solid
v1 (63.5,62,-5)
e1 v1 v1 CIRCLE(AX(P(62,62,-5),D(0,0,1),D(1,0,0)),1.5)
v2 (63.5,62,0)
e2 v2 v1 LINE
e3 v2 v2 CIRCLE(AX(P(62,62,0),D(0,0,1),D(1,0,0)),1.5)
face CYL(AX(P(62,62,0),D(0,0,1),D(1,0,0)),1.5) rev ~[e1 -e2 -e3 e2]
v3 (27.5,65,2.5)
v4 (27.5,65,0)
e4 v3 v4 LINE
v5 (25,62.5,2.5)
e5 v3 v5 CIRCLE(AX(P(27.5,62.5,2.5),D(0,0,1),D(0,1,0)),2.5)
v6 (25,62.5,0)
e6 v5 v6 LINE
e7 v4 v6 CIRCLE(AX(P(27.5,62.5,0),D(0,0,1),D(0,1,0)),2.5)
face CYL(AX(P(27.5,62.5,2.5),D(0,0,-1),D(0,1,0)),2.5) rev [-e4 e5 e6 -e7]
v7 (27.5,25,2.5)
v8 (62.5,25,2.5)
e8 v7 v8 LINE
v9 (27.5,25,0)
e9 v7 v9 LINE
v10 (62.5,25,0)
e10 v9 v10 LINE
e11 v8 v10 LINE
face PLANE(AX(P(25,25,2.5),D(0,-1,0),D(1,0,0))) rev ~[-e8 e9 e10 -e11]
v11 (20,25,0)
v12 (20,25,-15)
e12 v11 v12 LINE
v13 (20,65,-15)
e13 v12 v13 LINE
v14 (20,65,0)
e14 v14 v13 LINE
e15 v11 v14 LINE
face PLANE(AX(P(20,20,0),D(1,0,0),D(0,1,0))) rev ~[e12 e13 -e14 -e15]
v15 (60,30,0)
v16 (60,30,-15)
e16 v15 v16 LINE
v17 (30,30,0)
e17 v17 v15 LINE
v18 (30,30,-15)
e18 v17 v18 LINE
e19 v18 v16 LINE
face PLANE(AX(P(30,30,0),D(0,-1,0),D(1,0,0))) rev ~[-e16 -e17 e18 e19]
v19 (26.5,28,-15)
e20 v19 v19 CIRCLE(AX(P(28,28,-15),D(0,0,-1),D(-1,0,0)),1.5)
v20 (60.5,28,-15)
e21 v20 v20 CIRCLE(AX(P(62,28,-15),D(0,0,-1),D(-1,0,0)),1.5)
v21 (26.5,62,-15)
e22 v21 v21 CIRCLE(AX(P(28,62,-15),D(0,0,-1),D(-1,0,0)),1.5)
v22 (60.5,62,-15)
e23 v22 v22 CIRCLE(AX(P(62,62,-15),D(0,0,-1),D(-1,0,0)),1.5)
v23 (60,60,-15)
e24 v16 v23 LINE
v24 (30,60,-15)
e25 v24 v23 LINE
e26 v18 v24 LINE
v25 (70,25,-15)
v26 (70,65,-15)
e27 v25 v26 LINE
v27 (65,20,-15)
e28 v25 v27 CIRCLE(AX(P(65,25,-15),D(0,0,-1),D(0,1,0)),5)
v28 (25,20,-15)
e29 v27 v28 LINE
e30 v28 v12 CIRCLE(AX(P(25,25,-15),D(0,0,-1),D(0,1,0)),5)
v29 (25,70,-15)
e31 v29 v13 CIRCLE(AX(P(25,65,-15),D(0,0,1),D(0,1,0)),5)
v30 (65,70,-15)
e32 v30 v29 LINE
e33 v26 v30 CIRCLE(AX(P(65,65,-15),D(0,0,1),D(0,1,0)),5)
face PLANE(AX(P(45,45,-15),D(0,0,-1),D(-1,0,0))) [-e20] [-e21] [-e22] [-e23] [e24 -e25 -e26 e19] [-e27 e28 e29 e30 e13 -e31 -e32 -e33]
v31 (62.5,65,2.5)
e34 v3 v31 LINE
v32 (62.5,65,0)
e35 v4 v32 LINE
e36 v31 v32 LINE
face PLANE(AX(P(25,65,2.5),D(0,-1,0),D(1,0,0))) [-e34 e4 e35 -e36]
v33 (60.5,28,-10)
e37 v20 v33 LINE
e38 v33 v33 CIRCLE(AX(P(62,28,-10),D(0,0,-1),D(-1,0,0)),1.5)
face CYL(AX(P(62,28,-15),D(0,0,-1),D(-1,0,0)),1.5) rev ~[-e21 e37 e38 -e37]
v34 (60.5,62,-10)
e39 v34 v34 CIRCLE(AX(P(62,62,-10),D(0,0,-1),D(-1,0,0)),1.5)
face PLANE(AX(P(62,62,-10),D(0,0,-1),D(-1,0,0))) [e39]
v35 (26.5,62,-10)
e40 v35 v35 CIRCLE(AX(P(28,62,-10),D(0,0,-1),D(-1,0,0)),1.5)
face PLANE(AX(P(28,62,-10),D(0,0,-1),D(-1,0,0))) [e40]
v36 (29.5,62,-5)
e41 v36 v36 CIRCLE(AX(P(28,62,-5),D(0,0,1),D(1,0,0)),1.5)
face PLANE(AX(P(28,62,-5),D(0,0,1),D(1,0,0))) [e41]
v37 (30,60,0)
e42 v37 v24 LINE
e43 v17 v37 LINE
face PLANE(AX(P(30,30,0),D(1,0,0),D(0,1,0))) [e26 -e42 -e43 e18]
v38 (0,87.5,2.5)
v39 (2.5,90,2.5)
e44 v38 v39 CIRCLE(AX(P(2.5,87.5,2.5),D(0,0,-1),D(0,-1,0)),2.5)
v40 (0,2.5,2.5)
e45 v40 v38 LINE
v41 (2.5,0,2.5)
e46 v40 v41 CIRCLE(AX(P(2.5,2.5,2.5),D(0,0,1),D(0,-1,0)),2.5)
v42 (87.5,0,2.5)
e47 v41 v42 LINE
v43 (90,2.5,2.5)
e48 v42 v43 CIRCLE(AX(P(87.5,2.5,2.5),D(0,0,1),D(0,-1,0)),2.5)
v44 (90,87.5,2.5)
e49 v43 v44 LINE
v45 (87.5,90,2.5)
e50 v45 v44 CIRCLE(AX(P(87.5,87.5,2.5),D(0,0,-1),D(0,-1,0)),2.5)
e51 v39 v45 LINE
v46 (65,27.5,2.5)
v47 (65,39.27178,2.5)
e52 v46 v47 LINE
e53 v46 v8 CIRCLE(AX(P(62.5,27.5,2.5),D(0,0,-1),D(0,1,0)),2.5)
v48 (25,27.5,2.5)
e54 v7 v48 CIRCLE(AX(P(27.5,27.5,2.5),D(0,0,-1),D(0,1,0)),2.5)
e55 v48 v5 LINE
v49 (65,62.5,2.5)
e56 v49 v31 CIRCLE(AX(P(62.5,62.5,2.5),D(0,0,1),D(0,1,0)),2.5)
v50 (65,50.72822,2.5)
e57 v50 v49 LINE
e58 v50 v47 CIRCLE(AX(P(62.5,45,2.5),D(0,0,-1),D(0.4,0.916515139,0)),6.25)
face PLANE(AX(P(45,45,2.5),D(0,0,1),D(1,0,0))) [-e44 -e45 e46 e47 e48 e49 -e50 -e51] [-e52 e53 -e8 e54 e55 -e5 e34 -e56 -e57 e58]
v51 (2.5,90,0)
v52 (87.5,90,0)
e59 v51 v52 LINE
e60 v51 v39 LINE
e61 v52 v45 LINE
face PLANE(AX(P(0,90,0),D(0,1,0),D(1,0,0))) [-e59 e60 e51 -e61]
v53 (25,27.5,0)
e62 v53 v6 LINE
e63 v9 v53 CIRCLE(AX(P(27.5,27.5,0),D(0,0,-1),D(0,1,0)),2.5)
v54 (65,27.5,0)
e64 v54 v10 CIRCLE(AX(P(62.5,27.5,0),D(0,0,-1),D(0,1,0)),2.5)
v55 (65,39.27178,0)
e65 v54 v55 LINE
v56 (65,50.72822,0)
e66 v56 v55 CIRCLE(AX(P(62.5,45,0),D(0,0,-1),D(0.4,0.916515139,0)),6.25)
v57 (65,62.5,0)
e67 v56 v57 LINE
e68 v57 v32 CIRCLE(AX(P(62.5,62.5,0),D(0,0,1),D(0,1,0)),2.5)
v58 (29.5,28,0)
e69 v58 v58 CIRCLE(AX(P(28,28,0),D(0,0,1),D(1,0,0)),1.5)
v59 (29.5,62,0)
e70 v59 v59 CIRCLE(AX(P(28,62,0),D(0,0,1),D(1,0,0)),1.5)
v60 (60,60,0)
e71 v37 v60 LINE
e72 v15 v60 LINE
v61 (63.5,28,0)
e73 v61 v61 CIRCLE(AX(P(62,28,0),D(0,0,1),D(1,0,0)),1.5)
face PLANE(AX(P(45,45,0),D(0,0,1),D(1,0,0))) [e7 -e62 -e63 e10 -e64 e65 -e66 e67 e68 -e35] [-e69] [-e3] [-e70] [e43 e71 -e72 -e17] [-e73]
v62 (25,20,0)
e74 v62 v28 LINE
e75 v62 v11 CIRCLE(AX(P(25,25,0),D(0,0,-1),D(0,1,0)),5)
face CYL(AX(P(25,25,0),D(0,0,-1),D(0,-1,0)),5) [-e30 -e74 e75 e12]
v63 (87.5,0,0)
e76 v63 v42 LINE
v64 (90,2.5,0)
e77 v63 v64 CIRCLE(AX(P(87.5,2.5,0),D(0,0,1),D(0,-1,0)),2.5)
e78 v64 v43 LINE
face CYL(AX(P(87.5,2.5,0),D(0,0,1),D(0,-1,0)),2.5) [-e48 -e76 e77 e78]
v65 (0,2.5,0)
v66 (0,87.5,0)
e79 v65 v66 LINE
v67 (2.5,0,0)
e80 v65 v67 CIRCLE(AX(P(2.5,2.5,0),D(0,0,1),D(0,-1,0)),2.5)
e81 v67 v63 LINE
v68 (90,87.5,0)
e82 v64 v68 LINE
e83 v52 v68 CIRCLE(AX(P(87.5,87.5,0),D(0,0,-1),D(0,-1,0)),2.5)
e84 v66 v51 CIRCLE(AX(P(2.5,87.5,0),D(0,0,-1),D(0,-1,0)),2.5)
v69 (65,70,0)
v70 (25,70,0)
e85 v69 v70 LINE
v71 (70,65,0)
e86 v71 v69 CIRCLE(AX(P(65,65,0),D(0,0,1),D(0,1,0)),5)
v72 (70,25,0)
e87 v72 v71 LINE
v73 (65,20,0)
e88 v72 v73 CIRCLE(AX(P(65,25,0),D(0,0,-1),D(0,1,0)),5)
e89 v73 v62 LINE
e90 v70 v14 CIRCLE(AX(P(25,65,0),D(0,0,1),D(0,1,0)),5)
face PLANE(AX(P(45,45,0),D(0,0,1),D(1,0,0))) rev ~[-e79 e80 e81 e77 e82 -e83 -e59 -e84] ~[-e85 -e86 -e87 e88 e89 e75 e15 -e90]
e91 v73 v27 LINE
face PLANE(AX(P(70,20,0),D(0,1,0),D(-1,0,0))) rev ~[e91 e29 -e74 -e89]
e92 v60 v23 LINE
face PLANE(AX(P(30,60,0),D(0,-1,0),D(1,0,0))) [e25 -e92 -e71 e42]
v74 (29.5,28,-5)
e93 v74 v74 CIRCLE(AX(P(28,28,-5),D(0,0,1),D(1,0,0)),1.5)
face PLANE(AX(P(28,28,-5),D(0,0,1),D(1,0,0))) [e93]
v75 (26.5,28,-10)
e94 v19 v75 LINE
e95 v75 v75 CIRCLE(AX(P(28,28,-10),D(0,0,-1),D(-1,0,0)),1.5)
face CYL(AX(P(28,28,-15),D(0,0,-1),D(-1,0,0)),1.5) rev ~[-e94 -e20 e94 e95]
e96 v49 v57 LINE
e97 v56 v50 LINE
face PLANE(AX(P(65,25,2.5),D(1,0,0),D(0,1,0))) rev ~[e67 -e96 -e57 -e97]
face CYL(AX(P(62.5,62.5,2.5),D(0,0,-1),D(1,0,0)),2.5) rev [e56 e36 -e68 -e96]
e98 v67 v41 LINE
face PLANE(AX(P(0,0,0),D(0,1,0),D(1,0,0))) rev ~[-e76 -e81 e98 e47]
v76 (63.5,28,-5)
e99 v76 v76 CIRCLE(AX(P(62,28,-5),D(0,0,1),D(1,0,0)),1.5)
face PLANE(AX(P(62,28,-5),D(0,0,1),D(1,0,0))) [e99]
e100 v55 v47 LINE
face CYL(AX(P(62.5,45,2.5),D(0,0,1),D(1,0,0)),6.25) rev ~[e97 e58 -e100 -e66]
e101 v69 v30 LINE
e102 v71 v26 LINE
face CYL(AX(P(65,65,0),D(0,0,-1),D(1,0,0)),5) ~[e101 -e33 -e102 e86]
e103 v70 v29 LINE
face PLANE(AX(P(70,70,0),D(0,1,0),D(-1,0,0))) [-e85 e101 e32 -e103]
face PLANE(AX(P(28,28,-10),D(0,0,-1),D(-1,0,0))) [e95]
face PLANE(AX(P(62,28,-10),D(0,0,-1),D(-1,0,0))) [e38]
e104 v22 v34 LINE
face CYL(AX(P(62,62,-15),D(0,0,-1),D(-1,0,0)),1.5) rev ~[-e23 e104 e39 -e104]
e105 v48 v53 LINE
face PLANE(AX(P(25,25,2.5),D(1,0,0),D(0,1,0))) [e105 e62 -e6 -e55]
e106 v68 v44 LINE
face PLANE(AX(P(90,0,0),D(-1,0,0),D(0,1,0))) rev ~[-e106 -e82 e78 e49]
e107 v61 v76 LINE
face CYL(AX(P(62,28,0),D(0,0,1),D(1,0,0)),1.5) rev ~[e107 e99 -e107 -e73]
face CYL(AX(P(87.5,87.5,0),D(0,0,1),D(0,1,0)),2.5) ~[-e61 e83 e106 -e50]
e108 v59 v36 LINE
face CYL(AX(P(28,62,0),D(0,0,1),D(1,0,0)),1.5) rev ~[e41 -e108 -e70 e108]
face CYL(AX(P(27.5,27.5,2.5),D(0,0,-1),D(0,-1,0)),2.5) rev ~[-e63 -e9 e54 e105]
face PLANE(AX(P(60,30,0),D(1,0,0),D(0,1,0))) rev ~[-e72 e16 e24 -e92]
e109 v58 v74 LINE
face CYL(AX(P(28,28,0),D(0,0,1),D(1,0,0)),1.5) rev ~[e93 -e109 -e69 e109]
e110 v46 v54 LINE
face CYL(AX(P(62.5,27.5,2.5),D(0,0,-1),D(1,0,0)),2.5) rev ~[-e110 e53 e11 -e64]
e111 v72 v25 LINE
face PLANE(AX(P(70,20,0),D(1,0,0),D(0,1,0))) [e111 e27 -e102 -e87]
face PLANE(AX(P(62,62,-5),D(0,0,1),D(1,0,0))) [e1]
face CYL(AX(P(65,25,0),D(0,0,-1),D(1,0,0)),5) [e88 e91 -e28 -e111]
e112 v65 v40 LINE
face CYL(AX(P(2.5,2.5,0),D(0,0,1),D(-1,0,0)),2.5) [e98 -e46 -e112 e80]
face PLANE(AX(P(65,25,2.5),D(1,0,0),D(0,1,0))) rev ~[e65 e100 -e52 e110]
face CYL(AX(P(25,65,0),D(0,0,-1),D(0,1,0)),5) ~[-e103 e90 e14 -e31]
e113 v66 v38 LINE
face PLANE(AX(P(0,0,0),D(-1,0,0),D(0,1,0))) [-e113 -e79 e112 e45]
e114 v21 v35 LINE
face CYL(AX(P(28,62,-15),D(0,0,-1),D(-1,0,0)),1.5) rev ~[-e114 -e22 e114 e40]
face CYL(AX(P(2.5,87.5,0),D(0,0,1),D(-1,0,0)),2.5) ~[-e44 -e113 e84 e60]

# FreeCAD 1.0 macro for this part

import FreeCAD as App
import Part
import Sketcher
from FreeCAD import Vector
Q = App.Units.Quantity


def edges_at(feature, points):
    """Names of the edges that pass closest to the given points."""
    edges = feature.Shape.Edges
    near = lambda p: min(range(len(edges)), key=lambda i: edges[i].distToShape(Part.Vertex(*p))[0])
    return sorted({f"Edge{near(p) + 1}" for p in points})


def add_polygon(sketch, points):
    """Adds a closed chain of lines whose ends are joined by coincident constraints."""
    first, n = sketch.GeometryCount, len(points)
    for a, b in zip(points, points[1:] + points[:1]):
        sketch.addGeometry(Part.LineSegment(App.Vector(*a, 0), App.Vector(*b, 0)), False)
    for i in range(n):
        sketch.addConstraint(Sketcher.Constraint("Coincident", first + i, 2, first + (i + 1) % n, 1))

doc = App.newDocument("Part")
body = doc.addObject("PartDesign::Body", "Body")

# Sketch on XY plane
sketch1 = body.newObject("Sketcher::SketchObject", "Sketch")
sketch1.AttachmentSupport = (doc.getObject("XY_Plane"), [""])
sketch1.MapMode = "FlatFace"
add_polygon(sketch1, [(0, 90), (0, 0), (90, 0), (90, 90)])  # lines 0-3
sketch1.addConstraint(Sketcher.Constraint("Vertical", 0))
sketch1.addConstraint(Sketcher.Constraint("Horizontal", 1))
sketch1.addConstraint(Sketcher.Constraint("Vertical", 2))
sketch1.addConstraint(Sketcher.Constraint("Horizontal", 3))
sketch1.addConstraint(Sketcher.Constraint("Coincident", 0, 2, -1, 1))
sketch1.addConstraint(Sketcher.Constraint("Equal", 3, 0))
sketch1.addConstraint(Sketcher.Constraint("DistanceX", 1, 1, 1, 2, Q("90 mm")))
pad1 = body.newObject("PartDesign::Pad", "Pad")
pad1.Profile = sketch1
pad1.Length = 2.5

# Sketch on XY plane
sketch2 = body.newObject("Sketcher::SketchObject", "Sketch001")
sketch2.AttachmentSupport = (doc.getObject("XY_Plane"), [""])
sketch2.MapMode = "FlatFace"
add_polygon(sketch2, [(70, 70), (70, 20), (20, 20), (20, 70)])  # lines 0-3
sketch2.addConstraint(Sketcher.Constraint("Vertical", 0))
sketch2.addConstraint(Sketcher.Constraint("Horizontal", 1))
sketch2.addConstraint(Sketcher.Constraint("Vertical", 2))
sketch2.addConstraint(Sketcher.Constraint("Horizontal", 3))
sketch2.addConstraint(Sketcher.Constraint("Equal", 3, 0))
sketch2.addConstraint(Sketcher.Constraint("DistanceX", 1, 2, 1, 1, Q("50 mm")))
sketch2.addConstraint(Sketcher.Constraint("DistanceX", -1, 1, 0, 2, Q("70 mm")))
sketch2.addConstraint(Sketcher.Constraint("DistanceY", -1, 1, 0, 2, Q("20 mm")))
pad2 = body.newObject("PartDesign::Pad", "Pad001")
pad2.Profile = sketch2
pad2.Length = 15
pad2.Reversed = True

# Sketch on XY plane
sketch3 = body.newObject("Sketcher::SketchObject", "Sketch002")
sketch3.AttachmentSupport = (doc.getObject("XY_Plane"), [""])
sketch3.MapMode = "FlatFace"
sketch3.AttachmentOffset = App.Placement(Vector(0, 0, 2.5), App.Rotation())
add_polygon(sketch3, [(25, 65), (25, 25), (65, 25), (65, 65)])  # lines 0-3
sketch3.addConstraint(Sketcher.Constraint("Vertical", 0))
sketch3.addConstraint(Sketcher.Constraint("Horizontal", 1))
sketch3.addConstraint(Sketcher.Constraint("Vertical", 2))
sketch3.addConstraint(Sketcher.Constraint("Horizontal", 3))
sketch3.addConstraint(Sketcher.Constraint("Equal", 3, 0))
sketch3.addConstraint(Sketcher.Constraint("DistanceX", 1, 1, 1, 2, Q("40 mm")))
sketch3.addConstraint(Sketcher.Constraint("DistanceX", -1, 1, 0, 2, Q("25 mm")))
sketch3.addConstraint(Sketcher.Constraint("DistanceY", -1, 1, 0, 2, Q("25 mm")))
pocket1 = body.newObject("PartDesign::Pocket", "Pocket")
pocket1.Profile = sketch3
pocket1.Length = 2.5

# Sketch on XY plane
sketch4 = body.newObject("Sketcher::SketchObject", "Sketch003")
sketch4.AttachmentSupport = (doc.getObject("XY_Plane"), [""])
sketch4.MapMode = "FlatFace"
sketch4.addGeometry(Part.Circle(Vector(62, 62, 0), Vector(0, 0, 1), 1.5), False)
sketch4.addGeometry(Part.Circle(Vector(62, 28, 0), Vector(0, 0, 1), 1.5), False)
sketch4.addGeometry(Part.Circle(Vector(28, 62, 0), Vector(0, 0, 1), 1.5), False)
sketch4.addGeometry(Part.Circle(Vector(28, 28, 0), Vector(0, 0, 1), 1.5), False)
sketch4.addConstraint(Sketcher.Constraint("Equal", 0, 1))
sketch4.addConstraint(Sketcher.Constraint("Equal", 1, 2))
sketch4.addConstraint(Sketcher.Constraint("Equal", 2, 3))
sketch4.addConstraint(Sketcher.Constraint("Horizontal", 0, 3, 2, 3))
sketch4.addConstraint(Sketcher.Constraint("Horizontal", 1, 3, 3, 3))
sketch4.addConstraint(Sketcher.Constraint("Vertical", 0, 3, 1, 3))
sketch4.addConstraint(Sketcher.Constraint("Vertical", 2, 3, 3, 3))
sketch4.addConstraint(Sketcher.Constraint("Diameter", 0, Q("3 mm")))
sketch4.addConstraint(Sketcher.Constraint("DistanceX", -1, 1, 0, 3, Q("62 mm")))
sketch4.addConstraint(Sketcher.Constraint("DistanceY", -1, 1, 0, 3, Q("62 mm")))
sketch4.addConstraint(Sketcher.Constraint("DistanceY", -1, 1, 1, 3, Q("28 mm")))
sketch4.addConstraint(Sketcher.Constraint("DistanceX", -1, 1, 2, 3, Q("28 mm")))
pocket2 = body.newObject("PartDesign::Pocket", "Pocket001")
pocket2.Profile = sketch4
pocket2.Length = 5
doc.recompute()

fillet = body.newObject("PartDesign::Fillet", "Fillet")
fillet.Base = (pocket2, edges_at(pocket2, [
    (0, 90, 1.25),
    (90, 90, 1.25),
    (90, 0, 1.25),
    (0, 0, 1.25),
]))
fillet.Radius = 2.5
doc.recompute()

fillet2 = body.newObject("PartDesign::Fillet", "Fillet001")
fillet2.Base = (fillet, edges_at(fillet, [(25, 65, 1.25), (65, 65, 1.25)]))
fillet2.Radius = 2.5
doc.recompute()

fillet3 = body.newObject("PartDesign::Fillet", "Fillet002")
fillet3.Base = (fillet2, edges_at(fillet2, [(25, 25, 1.25), (65, 25, 1.25)]))
fillet3.Radius = 2.5

# Sketch on XY plane
sketch5 = body.newObject("Sketcher::SketchObject", "Sketch004")
sketch5.AttachmentSupport = (doc.getObject("XY_Plane"), [""])
sketch5.MapMode = "FlatFace"
sketch5.AttachmentOffset = App.Placement(Vector(0, 0, 2.5), App.Rotation())
sketch5.addGeometry(Part.Circle(Vector(62, 45, 0), Vector(0, 0, 1), 6), False)
sketch5.addConstraint(Sketcher.Constraint("Diameter", 0, Q("12.5 mm")))
sketch5.addConstraint(Sketcher.Constraint("DistanceY", -1, 1, 0, 3, Q("45 mm")))
sketch5.addConstraint(Sketcher.Constraint("DistanceX", -1, 1, 0, 3, Q("62.5 mm")))
pocket3 = body.newObject("PartDesign::Pocket", "Pocket002")
pocket3.Profile = sketch5
pocket3.Length = 2.5

# Sketch on XY plane
sketch6 = body.newObject("Sketcher::SketchObject", "Sketch005")
sketch6.AttachmentSupport = (doc.getObject("XY_Plane"), [""])
sketch6.MapMode = "FlatFace"
add_polygon(sketch6, [(30, 60), (30, 30), (60, 30), (60, 60)])  # lines 0-3
sketch6.addConstraint(Sketcher.Constraint("Vertical", 0))
sketch6.addConstraint(Sketcher.Constraint("Horizontal", 1))
sketch6.addConstraint(Sketcher.Constraint("Vertical", 2))
sketch6.addConstraint(Sketcher.Constraint("Horizontal", 3))
sketch6.addConstraint(Sketcher.Constraint("Equal", 3, 0))
sketch6.addConstraint(Sketcher.Constraint("DistanceX", 1, 1, 1, 2, Q("30 mm")))
sketch6.addConstraint(Sketcher.Constraint("DistanceX", -1, 1, 0, 2, Q("30 mm")))
sketch6.addConstraint(Sketcher.Constraint("DistanceY", -1, 1, 0, 2, Q("30 mm")))
pocket4 = body.newObject("PartDesign::Pocket", "Pocket003")
pocket4.Profile = sketch6
pocket4.Length = 15

# Sketch on XY plane
sketch7 = body.newObject("Sketcher::SketchObject", "Sketch006")
sketch7.AttachmentSupport = (doc.getObject("XY_Plane"), [""])
sketch7.MapMode = "FlatFace"
sketch7.AttachmentOffset = App.Placement(Vector(0, 0, -15), App.Rotation())
sketch7.addGeometry(Part.Circle(Vector(28, 28, 0), Vector(0, 0, 1), 1.5), False)
sketch7.addGeometry(Part.Circle(Vector(28, 62, 0), Vector(0, 0, 1), 1.5), False)
sketch7.addGeometry(Part.Circle(Vector(62, 62, 0), Vector(0, 0, 1), 1.5), False)
sketch7.addGeometry(Part.Circle(Vector(62, 28, 0), Vector(0, 0, 1), 1.5), False)
sketch7.addConstraint(Sketcher.Constraint("Equal", 0, 1))
sketch7.addConstraint(Sketcher.Constraint("Equal", 1, 2))
sketch7.addConstraint(Sketcher.Constraint("Equal", 2, 3))
sketch7.addConstraint(Sketcher.Constraint("Horizontal", 1, 3, 2, 3))
sketch7.addConstraint(Sketcher.Constraint("Horizontal", 0, 3, 3, 3))
sketch7.addConstraint(Sketcher.Constraint("Vertical", 0, 3, 1, 3))
sketch7.addConstraint(Sketcher.Constraint("Vertical", 2, 3, 3, 3))
sketch7.addConstraint(Sketcher.Constraint("Diameter", 0, Q("3 mm")))
sketch7.addConstraint(Sketcher.Constraint("DistanceX", -1, 1, 0, 3, Q("28 mm")))
sketch7.addConstraint(Sketcher.Constraint("DistanceY", -1, 1, 0, 3, Q("28 mm")))
sketch7.addConstraint(Sketcher.Constraint("DistanceY", -1, 1, 1, 3, Q("62 mm")))
sketch7.addConstraint(Sketcher.Constraint("DistanceX", -1, 1, 2, 3, Q("62 mm")))
pocket5 = body.newObject("PartDesign::Pocket", "Pocket004")
pocket5.Profile = sketch7
pocket5.Length = 5
pocket5.Reversed = True
doc.recompute()

fillet4 = body.newObject("PartDesign::Fillet", "Fillet003")
fillet4.Base = (pocket5, edges_at(pocket5, [(70, 70, -7.5), (70, 20, -7.5)]))
fillet4.Radius = 5
doc.recompute()

fillet5 = body.newObject("PartDesign::Fillet", "Fillet004")
fillet5.Base = (fillet4, edges_at(fillet4, [(20, 20, -7.5), (20, 70, -7.5)]))
fillet5.Radius = 5

doc.recompute()
